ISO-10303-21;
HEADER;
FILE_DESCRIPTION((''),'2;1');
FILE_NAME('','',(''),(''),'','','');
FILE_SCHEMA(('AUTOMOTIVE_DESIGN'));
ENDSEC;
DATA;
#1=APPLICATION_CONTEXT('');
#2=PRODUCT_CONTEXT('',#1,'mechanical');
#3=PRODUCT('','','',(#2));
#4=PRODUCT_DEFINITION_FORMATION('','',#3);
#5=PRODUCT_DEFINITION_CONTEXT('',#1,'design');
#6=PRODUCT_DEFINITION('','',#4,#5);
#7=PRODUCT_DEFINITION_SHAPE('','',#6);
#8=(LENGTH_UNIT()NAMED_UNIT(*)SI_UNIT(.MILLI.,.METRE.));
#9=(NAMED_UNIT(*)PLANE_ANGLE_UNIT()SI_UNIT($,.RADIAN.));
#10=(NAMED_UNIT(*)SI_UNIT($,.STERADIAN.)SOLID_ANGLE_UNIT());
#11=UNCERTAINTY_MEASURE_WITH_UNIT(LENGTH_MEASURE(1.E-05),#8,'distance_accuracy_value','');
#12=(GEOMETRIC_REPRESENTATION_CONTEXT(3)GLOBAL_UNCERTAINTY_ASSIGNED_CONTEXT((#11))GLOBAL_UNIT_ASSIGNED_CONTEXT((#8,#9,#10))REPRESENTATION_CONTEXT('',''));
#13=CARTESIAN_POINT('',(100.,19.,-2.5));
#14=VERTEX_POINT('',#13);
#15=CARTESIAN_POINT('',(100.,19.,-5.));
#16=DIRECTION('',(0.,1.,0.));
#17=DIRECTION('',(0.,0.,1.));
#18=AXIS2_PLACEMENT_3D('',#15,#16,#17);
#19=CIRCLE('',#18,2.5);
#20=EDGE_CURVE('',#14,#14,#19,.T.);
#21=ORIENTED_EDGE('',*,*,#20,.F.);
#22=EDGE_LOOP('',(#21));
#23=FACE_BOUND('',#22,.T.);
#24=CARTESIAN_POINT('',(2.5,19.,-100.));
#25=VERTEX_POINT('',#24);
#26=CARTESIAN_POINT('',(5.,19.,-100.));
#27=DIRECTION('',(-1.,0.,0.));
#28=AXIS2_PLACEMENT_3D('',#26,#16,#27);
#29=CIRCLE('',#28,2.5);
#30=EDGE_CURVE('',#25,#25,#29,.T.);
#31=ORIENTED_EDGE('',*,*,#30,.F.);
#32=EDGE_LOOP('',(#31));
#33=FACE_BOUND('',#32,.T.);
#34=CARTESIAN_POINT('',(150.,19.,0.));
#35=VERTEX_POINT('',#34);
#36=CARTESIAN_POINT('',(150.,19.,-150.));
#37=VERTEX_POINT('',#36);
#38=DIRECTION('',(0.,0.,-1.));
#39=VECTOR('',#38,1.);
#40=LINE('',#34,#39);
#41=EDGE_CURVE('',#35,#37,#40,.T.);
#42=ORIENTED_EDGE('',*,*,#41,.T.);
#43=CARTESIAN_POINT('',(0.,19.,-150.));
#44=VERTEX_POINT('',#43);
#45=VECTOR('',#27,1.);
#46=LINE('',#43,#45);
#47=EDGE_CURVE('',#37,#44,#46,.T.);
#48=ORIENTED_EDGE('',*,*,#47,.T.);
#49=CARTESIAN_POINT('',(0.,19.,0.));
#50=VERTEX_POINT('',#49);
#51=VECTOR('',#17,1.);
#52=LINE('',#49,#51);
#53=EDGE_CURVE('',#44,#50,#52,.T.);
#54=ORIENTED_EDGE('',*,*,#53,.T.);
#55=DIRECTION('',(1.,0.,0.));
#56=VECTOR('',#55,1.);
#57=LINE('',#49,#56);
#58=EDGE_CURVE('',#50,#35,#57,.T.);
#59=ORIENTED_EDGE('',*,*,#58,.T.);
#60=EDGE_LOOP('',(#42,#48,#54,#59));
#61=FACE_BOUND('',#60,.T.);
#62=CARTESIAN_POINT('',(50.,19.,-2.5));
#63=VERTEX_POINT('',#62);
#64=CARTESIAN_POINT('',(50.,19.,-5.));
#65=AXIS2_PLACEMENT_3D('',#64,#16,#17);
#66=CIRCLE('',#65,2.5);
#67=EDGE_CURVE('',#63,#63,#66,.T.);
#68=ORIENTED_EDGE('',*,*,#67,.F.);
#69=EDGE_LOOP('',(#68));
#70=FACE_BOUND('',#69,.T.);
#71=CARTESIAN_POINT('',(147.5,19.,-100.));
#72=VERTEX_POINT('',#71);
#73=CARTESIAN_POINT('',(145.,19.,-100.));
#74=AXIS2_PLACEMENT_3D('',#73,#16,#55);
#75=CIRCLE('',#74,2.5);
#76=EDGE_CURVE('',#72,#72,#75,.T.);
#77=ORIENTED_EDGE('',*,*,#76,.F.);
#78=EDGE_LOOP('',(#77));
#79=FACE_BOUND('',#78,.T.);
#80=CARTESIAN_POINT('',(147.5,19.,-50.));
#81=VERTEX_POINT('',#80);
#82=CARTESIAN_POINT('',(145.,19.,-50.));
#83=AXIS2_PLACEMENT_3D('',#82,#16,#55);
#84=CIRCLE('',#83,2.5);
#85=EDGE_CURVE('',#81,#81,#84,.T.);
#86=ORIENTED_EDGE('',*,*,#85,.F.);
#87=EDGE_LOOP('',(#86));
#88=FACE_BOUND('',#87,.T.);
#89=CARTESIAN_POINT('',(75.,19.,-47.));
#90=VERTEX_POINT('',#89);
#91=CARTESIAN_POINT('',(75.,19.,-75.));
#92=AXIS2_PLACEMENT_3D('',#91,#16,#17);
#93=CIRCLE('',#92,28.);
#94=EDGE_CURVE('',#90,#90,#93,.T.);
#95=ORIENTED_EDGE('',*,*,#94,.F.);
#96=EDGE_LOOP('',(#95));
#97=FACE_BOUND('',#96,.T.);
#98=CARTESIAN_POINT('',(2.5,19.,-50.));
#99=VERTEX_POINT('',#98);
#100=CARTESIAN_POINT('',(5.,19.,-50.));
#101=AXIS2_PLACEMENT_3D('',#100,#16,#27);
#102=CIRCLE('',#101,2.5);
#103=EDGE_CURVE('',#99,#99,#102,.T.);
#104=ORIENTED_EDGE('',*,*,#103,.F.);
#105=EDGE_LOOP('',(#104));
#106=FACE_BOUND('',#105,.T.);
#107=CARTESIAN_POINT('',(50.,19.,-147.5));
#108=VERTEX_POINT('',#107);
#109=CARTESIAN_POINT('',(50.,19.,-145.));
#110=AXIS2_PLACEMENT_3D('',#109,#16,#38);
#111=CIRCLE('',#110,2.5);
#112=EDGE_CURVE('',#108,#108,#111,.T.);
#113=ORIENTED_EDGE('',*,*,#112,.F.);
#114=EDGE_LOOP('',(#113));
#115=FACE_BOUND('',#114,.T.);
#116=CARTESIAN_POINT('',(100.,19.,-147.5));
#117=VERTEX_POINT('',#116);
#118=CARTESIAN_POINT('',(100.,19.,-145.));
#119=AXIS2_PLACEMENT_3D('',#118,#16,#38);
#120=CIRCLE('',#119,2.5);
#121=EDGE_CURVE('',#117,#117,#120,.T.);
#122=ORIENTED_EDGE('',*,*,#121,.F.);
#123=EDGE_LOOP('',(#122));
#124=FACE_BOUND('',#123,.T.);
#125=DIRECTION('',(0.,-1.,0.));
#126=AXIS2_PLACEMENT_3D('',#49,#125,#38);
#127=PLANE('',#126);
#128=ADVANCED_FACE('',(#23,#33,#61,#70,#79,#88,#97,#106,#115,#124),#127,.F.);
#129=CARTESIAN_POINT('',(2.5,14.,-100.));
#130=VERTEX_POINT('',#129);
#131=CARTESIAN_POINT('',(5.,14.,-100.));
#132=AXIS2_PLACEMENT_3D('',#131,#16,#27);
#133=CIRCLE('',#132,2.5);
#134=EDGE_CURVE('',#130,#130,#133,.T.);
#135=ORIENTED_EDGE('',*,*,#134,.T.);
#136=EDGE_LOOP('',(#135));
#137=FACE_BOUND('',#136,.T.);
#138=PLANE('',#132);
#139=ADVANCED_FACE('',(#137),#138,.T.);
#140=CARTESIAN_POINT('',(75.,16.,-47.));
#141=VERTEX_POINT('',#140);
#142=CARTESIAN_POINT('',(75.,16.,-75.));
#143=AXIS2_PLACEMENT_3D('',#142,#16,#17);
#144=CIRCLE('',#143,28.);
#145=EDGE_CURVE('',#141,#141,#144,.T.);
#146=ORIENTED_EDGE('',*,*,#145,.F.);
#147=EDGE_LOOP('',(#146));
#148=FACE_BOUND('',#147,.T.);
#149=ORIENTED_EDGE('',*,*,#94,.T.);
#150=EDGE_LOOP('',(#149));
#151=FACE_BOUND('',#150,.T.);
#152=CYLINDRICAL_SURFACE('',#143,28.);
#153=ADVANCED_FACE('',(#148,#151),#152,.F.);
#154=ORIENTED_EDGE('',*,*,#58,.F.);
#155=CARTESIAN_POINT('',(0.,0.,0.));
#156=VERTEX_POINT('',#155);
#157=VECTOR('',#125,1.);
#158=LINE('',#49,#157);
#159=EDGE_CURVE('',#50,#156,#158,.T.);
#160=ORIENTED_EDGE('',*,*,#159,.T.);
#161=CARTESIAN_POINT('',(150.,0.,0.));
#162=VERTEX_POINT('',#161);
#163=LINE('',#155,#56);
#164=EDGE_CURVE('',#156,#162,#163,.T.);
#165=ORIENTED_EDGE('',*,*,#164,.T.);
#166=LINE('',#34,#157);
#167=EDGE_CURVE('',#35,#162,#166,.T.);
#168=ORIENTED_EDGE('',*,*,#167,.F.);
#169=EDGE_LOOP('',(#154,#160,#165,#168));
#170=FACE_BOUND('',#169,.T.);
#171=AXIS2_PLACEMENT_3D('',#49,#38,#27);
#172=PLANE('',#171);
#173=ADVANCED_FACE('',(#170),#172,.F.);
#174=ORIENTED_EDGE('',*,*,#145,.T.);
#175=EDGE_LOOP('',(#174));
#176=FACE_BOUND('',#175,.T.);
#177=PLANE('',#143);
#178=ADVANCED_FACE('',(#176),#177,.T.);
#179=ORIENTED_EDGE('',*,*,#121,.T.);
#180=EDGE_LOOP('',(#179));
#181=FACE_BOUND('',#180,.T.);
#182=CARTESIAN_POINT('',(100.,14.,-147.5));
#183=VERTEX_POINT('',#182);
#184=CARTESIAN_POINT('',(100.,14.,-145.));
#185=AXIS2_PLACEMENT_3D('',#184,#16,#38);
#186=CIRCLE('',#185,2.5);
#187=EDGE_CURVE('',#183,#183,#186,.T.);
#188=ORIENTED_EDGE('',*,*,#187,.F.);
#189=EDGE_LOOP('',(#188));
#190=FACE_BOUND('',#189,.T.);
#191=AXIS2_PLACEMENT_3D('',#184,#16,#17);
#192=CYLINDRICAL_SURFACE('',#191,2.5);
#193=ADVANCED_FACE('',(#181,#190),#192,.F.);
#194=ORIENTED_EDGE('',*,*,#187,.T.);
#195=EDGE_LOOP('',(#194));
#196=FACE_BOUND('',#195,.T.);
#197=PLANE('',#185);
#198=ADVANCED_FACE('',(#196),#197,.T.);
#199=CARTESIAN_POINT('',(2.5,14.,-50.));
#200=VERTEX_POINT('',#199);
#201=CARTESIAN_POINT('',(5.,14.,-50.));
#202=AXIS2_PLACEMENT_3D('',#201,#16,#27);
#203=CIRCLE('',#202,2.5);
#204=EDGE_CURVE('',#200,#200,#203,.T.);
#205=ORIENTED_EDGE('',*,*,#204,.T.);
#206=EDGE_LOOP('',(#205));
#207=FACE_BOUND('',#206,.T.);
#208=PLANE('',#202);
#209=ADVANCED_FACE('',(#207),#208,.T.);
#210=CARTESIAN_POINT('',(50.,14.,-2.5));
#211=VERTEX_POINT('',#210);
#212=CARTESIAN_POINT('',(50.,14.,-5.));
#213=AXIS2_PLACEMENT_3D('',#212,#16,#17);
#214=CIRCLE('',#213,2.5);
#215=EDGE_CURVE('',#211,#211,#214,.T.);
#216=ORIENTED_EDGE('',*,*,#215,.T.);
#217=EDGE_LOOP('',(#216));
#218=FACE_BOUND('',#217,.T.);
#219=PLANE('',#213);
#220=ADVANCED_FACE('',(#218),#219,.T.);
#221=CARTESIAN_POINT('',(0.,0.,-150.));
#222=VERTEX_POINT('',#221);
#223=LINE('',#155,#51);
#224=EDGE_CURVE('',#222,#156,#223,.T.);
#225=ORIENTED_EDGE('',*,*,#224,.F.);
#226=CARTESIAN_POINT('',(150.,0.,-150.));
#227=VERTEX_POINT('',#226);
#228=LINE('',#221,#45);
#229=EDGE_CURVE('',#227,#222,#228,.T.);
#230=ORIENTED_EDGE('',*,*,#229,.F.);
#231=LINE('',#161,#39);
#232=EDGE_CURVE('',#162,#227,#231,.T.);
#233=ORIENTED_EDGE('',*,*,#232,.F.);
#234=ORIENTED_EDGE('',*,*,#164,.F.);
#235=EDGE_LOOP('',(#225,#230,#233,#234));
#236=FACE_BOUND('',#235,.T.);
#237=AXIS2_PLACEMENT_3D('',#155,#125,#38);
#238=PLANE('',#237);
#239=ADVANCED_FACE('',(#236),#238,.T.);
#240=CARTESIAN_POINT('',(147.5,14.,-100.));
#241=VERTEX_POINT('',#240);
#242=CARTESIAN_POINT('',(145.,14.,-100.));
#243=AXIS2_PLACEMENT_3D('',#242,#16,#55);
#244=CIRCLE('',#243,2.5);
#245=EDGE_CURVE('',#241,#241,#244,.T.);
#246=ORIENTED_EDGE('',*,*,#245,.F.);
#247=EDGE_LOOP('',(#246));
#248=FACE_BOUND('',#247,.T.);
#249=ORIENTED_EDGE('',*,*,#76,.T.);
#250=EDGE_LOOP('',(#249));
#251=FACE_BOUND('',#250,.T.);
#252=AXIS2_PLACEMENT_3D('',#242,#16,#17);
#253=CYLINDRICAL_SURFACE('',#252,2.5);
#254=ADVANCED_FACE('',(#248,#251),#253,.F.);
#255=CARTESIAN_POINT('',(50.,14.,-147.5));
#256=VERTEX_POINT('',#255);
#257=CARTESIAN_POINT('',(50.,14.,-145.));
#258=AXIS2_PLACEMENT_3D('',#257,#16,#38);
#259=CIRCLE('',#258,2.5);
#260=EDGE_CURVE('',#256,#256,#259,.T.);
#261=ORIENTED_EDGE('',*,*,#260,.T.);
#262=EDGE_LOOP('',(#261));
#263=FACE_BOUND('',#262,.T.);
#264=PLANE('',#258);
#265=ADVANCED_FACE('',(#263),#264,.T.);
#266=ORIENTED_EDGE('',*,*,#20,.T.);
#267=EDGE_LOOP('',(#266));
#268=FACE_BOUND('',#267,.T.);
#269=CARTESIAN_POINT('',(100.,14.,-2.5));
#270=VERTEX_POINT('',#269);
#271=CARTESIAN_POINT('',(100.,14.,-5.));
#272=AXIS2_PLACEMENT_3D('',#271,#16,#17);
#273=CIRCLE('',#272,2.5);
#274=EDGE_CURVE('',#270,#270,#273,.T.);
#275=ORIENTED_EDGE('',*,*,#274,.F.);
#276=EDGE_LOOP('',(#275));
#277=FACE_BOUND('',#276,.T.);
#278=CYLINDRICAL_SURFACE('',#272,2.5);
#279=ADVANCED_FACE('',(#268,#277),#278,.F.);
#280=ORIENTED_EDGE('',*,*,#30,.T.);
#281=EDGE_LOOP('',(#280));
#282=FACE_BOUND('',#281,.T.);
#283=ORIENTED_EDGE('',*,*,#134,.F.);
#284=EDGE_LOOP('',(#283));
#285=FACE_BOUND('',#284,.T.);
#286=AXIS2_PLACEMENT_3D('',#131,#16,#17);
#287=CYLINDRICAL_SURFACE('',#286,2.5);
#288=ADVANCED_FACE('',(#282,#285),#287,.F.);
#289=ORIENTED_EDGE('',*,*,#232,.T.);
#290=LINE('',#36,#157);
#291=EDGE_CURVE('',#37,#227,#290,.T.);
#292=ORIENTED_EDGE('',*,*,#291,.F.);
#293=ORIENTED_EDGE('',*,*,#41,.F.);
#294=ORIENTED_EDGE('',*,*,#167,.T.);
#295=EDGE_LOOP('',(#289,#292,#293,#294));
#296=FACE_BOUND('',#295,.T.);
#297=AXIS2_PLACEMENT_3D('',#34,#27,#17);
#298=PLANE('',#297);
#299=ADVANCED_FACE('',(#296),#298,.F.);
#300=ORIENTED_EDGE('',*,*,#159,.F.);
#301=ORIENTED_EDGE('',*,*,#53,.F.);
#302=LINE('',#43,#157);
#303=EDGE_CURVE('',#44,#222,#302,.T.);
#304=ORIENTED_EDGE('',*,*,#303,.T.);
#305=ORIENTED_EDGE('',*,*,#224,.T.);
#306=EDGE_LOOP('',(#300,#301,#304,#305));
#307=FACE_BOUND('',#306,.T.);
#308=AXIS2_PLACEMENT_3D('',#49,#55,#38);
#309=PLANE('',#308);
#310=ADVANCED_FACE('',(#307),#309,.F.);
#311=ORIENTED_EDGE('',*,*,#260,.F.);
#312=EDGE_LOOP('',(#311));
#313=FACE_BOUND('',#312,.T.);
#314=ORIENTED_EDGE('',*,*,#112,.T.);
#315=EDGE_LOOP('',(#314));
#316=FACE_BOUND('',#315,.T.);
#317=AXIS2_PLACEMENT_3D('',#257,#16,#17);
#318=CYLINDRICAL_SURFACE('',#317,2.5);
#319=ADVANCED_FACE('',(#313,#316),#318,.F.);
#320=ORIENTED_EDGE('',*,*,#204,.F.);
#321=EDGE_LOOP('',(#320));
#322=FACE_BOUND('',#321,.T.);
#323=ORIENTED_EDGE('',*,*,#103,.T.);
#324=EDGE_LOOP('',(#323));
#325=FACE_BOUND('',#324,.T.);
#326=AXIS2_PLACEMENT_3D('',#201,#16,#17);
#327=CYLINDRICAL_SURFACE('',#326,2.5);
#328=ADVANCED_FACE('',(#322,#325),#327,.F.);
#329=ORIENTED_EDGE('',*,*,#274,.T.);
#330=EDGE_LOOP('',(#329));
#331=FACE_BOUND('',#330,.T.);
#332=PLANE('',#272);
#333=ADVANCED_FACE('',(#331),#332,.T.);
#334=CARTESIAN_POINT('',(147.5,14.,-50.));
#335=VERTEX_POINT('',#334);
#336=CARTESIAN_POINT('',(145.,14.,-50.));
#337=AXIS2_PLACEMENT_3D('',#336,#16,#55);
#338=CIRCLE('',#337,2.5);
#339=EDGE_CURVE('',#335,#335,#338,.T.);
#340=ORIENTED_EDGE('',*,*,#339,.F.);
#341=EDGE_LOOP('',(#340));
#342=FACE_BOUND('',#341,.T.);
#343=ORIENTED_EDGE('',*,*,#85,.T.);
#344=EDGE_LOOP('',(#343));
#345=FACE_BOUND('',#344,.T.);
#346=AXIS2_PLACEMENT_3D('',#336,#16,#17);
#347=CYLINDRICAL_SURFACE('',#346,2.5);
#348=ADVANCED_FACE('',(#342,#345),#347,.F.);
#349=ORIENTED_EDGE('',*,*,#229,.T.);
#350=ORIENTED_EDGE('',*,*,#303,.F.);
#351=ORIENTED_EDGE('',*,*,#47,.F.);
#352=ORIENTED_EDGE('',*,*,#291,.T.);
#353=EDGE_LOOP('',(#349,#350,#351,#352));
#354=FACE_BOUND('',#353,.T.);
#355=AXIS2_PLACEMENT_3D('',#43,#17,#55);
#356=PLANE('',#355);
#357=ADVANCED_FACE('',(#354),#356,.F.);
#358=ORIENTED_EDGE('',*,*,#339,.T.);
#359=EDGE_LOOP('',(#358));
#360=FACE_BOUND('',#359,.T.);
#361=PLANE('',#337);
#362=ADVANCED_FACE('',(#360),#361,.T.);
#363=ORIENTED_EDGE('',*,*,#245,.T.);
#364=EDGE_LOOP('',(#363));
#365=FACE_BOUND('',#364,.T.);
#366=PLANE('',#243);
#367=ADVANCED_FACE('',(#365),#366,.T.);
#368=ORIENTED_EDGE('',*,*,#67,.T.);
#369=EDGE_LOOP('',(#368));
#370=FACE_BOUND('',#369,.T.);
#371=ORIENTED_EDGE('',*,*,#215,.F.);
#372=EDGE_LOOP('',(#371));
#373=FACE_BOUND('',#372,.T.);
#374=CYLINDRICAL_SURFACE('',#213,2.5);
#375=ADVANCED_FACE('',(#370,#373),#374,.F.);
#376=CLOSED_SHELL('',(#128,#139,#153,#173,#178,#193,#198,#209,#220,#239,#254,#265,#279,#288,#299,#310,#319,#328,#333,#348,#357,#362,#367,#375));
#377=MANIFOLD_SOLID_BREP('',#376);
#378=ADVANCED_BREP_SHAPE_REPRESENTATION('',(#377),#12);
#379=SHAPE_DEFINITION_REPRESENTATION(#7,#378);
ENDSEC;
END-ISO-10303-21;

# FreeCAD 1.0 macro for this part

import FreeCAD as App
import Part
import Sketcher
Q = App.Units.Quantity

doc = App.newDocument("Part")
params = doc.addObject("Spreadsheet::Sheet", "Params")
for row, (alias, value) in enumerate([
    ("sketch1_width", "150 mm"),
    ("pad1_length", "19 mm"),
    ("sketch2_diameter", "56 mm"),
    ("pocket1_length", "3 mm"),
    ("sketch3_diameter", "5 mm"),
    ("pocket2_length", "5 mm"),
], start=1):
    params.set(f"A{row}", alias)
    params.set(f"B{row}", "=" + value)
    params.setAlias(f"B{row}", alias)

body = doc.addObject("PartDesign::Body", "Body")

# Sketch on XZ plane
sketch1 = doc.addObject("Sketcher::SketchObject", "Sketch")
body.addObject(sketch1)
sketch1.AttachmentSupport = (doc.XZ_Plane, [""])
sketch1.MapMode = "FlatFace"
sketch1.addGeometry(Part.LineSegment(App.Vector(0, -150, 0), App.Vector(0, 0, 0)), False)
sketch1.addGeometry(Part.LineSegment(App.Vector(0, 0, 0), App.Vector(150, 0, 0)), False)
sketch1.addGeometry(Part.LineSegment(App.Vector(150, 0, 0), App.Vector(150, -150, 0)), False)
sketch1.addGeometry(Part.LineSegment(App.Vector(150, -150, 0), App.Vector(0, -150, 0)), False)
sketch1.addConstraint(Sketcher.Constraint("Coincident", 0, 2, 1, 1))
sketch1.addConstraint(Sketcher.Constraint("Coincident", 1, 2, 2, 1))
sketch1.addConstraint(Sketcher.Constraint("Coincident", 2, 2, 3, 1))
sketch1.addConstraint(Sketcher.Constraint("Coincident", 3, 2, 0, 1))
sketch1.addConstraint(Sketcher.Constraint("Vertical", 0))
sketch1.addConstraint(Sketcher.Constraint("Horizontal", 1))
sketch1.addConstraint(Sketcher.Constraint("Vertical", 2))
sketch1.addConstraint(Sketcher.Constraint("Horizontal", 3))
sketch1.addConstraint(Sketcher.Constraint("Coincident", 0, 2, -1, 1))
sketch1.addConstraint(Sketcher.Constraint("Equal", 3, 0))
sketch1.addConstraint(Sketcher.Constraint("DistanceX", 1, 1, 1, 2, Q("150 mm")))
sketch1.setExpression("Constraints[10]", "Params.sketch1_width")
pad1 = doc.addObject("PartDesign::Pad", "Pad")
body.addObject(pad1)
pad1.Profile = sketch1
pad1.setExpression("Length", "Params.pad1_length")
pad1.Reversed = True

# Sketch on XZ plane
sketch2 = doc.addObject("Sketcher::SketchObject", "Sketch001")
body.addObject(sketch2)
sketch2.AttachmentSupport = (doc.XZ_Plane, [""])
sketch2.MapMode = "FlatFace"
sketch2.AttachmentOffset = App.Placement(App.Vector(0, 0, -19), App.Rotation())
sketch2.addGeometry(Part.Circle(App.Vector(75, -75, 0), App.Vector(0, 0, 1), 28), False)
sketch2.addConstraint(Sketcher.Constraint("Diameter", 0, Q("56 mm")))
sketch2.addConstraint(Sketcher.Constraint("DistanceX", -1, 1, 0, 3, Q("75 mm")))
sketch2.addConstraint(Sketcher.Constraint("DistanceY", 0, 3, -1, 1, Q("75 mm")))
sketch2.setExpression("Constraints[0]", "Params.sketch2_diameter")
pocket1 = doc.addObject("PartDesign::Pocket", "Pocket")
body.addObject(pocket1)
pocket1.Profile = sketch2
pocket1.setExpression("Length", "Params.pocket1_length")
pocket1.Reversed = True

# Sketch on XZ plane
sketch3 = doc.addObject("Sketcher::SketchObject", "Sketch002")
body.addObject(sketch3)
sketch3.AttachmentSupport = (doc.XZ_Plane, [""])
sketch3.MapMode = "FlatFace"
sketch3.AttachmentOffset = App.Placement(App.Vector(0, 0, -19), App.Rotation())
sketch3.addGeometry(Part.Circle(App.Vector(100, -5, 0), App.Vector(0, 0, 1), 2.5), False)
sketch3.addGeometry(Part.Circle(App.Vector(50, -5, 0), App.Vector(0, 0, 1), 2.5), False)
sketch3.addConstraint(Sketcher.Constraint("Equal", 0, 1))
sketch3.addConstraint(Sketcher.Constraint("Horizontal", 0, 3, 1, 3))
sketch3.addConstraint(Sketcher.Constraint("Diameter", 0, Q("5 mm")))
sketch3.addConstraint(Sketcher.Constraint("DistanceX", -1, 1, 0, 3, Q("100 mm")))
sketch3.addConstraint(Sketcher.Constraint("DistanceY", 0, 3, -1, 1, Q("5 mm")))
sketch3.addConstraint(Sketcher.Constraint("DistanceX", -1, 1, 1, 3, Q("50 mm")))
sketch3.setExpression("Constraints[2]", "Params.sketch3_diameter")
pocket2 = doc.addObject("PartDesign::Pocket", "Pocket001")
body.addObject(pocket2)
pocket2.Profile = sketch3
pocket2.setExpression("Length", "Params.pocket2_length")
pocket2.Reversed = True
doc.recompute()

datumline = doc.addObject("PartDesign::Line", "DatumLine")
body.addObject(datumline)
datumline.Placement = App.Placement(App.Vector(75, 0, -75), App.Rotation(App.Vector(0, 0, 1), App.Vector(0, 1, 0)))
polarpattern = doc.addObject("PartDesign::PolarPattern", "PolarPattern")
body.addObject(polarpattern)
polarpattern.Originals = [pocket2]
polarpattern.Axis = (datumline, [""])
polarpattern.Angle = 360
polarpattern.Occurrences = 4
body.Tip = polarpattern

doc.recompute()
